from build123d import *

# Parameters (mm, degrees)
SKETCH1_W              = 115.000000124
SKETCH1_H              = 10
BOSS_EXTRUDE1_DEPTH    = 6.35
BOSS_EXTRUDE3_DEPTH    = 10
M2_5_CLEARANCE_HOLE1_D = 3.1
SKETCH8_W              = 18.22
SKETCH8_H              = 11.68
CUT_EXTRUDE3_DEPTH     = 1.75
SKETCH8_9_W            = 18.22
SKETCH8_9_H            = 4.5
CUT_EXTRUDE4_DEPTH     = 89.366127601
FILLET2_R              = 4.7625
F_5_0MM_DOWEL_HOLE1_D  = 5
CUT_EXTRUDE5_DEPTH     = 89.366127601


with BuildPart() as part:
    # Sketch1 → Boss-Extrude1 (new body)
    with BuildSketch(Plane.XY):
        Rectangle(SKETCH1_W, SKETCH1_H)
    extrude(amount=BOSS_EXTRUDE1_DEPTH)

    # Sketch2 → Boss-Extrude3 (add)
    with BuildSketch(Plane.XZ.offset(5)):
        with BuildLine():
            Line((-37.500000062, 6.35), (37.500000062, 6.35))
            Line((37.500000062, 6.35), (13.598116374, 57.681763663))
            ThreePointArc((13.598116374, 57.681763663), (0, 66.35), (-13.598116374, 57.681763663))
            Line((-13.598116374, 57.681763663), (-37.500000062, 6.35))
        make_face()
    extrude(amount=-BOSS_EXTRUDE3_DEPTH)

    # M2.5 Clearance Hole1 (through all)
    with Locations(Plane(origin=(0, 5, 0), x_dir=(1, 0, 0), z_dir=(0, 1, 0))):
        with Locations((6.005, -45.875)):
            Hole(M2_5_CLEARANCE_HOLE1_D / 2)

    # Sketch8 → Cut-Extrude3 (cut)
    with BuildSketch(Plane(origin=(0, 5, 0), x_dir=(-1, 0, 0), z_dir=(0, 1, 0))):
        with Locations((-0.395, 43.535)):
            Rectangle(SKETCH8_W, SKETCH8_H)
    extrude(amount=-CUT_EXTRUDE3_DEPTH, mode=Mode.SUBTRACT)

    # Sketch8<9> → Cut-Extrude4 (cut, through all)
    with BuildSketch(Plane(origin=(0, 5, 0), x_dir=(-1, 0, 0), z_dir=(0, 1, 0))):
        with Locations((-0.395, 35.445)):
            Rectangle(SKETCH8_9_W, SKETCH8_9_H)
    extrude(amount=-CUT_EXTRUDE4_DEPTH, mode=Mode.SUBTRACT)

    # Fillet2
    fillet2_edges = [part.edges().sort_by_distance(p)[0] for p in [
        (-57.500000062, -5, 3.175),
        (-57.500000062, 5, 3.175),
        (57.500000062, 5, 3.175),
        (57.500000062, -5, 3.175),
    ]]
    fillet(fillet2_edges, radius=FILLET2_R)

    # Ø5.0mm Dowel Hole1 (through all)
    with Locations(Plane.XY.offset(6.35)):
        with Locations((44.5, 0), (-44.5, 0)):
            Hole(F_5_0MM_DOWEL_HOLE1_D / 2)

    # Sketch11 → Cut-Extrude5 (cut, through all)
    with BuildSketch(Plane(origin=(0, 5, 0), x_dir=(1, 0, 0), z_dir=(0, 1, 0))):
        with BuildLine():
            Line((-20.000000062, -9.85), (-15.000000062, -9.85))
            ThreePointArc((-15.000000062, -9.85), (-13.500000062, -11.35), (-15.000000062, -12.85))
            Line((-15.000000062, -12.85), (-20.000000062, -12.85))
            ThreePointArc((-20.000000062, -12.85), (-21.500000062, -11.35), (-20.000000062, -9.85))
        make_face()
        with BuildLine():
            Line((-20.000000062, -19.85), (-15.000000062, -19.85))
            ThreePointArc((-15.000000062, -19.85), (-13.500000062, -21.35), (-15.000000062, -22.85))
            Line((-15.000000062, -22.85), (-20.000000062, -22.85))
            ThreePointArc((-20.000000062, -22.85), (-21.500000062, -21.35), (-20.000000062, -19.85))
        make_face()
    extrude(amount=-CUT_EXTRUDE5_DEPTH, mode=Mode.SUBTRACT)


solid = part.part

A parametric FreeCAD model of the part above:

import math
import FreeCAD as App
import Part
import Sketcher

V = App.Vector
Q = App.Units.Quantity


def edges_at(feature, points):
    """Names of the edges that pass closest to the given points."""
    edges = feature.Shape.Edges
    near = lambda p: min(range(len(edges)), key=lambda i: edges[i].distToShape(Part.Vertex(*p))[0])
    return sorted({f"Edge{near(p) + 1}" for p in points})

doc = App.newDocument("Part")
body = doc.addObject("PartDesign::Body", "Body")

sketch1 = body.newObject("Sketcher::SketchObject", "Sketch")
sketch1.AttachmentSupport = (doc.getObject("XY_Plane"), [""])
sketch1.MapMode = "FlatFace"
sketch1.addGeometry([
    Part.LineSegment(V(-58, 5, 0), V(-58, -5, 0)),
    Part.LineSegment(V(-58, -5, 0), V(58, -5, 0)),
    Part.LineSegment(V(58, -5, 0), V(58, 5, 0)),
    Part.LineSegment(V(58, 5, 0), V(-58, 5, 0)),
], False)
sketch1.addConstraint([
    Sketcher.Constraint("Coincident", 0, 2, 1, 1),
    Sketcher.Constraint("Coincident", 1, 2, 2, 1),
    Sketcher.Constraint("Coincident", 2, 2, 3, 1),
    Sketcher.Constraint("Coincident", 3, 2, 0, 1),
    Sketcher.Constraint("Vertical", 0),
    Sketcher.Constraint("Horizontal", 1),
    Sketcher.Constraint("Vertical", 2),
    Sketcher.Constraint("Horizontal", 3),
    Sketcher.Constraint("Symmetric", 0, 2, 2, 2, -1, 1),
    Sketcher.Constraint("DistanceX", 1, 1, 1, 2, Q("115 mm")),
    Sketcher.Constraint("DistanceY", 0, 2, 0, 1, Q("10 mm")),
])
pad1 = body.newObject("PartDesign::Pad", "Pad")
pad1.Profile = sketch1
pad1.Length = 6.35

sketch2 = body.newObject("Sketcher::SketchObject", "Sketch001")
sketch2.AttachmentSupport = (doc.getObject("XZ_Plane"), [""])
sketch2.MapMode = "FlatFace"
sketch2.AttachmentOffset = App.Placement(V(0, 0, 5), App.Rotation())
sketch2.addGeometry([
    Part.LineSegment(V(-38, 6, 0), V(38, 6, 0)),
    Part.LineSegment(V(38, 6, 0), V(14, 58, 0)),
    Part.ArcOfCircle(Part.Circle(V(0, 51, 0), V(0, 0, 1), 15), math.radians(25), math.radians(155)),
    Part.LineSegment(V(-14, 58, 0), V(-38, 6, 0)),
], False)
sketch2.addConstraint([
    Sketcher.Constraint("Coincident", 0, 2, 1, 1),
    Sketcher.Constraint("Tangent", 1, 2, 2, 1),
    Sketcher.Constraint("Tangent", 2, 2, 3, 1),
    Sketcher.Constraint("Coincident", 3, 2, 0, 1),
    Sketcher.Constraint("Horizontal", 0),
    Sketcher.Constraint("Symmetric", 1, 2, 2, 2, -2),
    Sketcher.Constraint("Radius", 2, Q("15 mm")),
    Sketcher.Constraint("DistanceX", 0, 1, 0, 2, Q("75 mm")),
    Sketcher.Constraint("DistanceY", 0, 2, 2, 3, Q("45 mm")),
    Sketcher.Constraint("DistanceY", -1, 1, 2, 3, Q("51.35 mm")),
])
pad2 = body.newObject("PartDesign::Pad", "Pad001")
pad2.Profile = sketch2
pad2.Length = 10
pad2.Reversed = True

sketch3 = body.newObject("Sketcher::SketchObject", "Sketch002")
sketch3.AttachmentSupport = (doc.getObject("XZ_Plane"), [""])
sketch3.MapMode = "FlatFace"
sketch3.AttachmentOffset = App.Placement(V(0, 0, -5), App.Rotation())
sketch3.addGeometry(Part.Circle(V(6, 45.9, 0), V(0, 0, 1), 1.6), False)
sketch3.addConstraint([
    Sketcher.Constraint("Diameter", 0, Q("3.1 mm")),
    Sketcher.Constraint("DistanceX", -1, 1, 0, 3, Q("6.005 mm")),
    Sketcher.Constraint("DistanceY", -1, 1, 0, 3, Q("45.875 mm")),
])
doc.recompute()
hole = body.newObject("PartDesign::Hole", "Hole")
hole.Profile = sketch3
hole.ThreadType = "None"
hole.Diameter = 3.1
hole.DepthType = "ThroughAll"
hole.Reversed = True

sketch4 = body.newObject("Sketcher::SketchObject", "Sketch003")
sketch4.AttachmentSupport = (doc.getObject("XZ_Plane"), [""])
sketch4.MapMode = "FlatFace"
sketch4.AttachmentOffset = App.Placement(V(0, 0, -5), App.Rotation())
sketch4.addGeometry([
    Part.LineSegment(V(10, 49, 0), V(10, 38, 0)),
    Part.LineSegment(V(10, 38, 0), V(-9, 38, 0)),
    Part.LineSegment(V(-9, 38, 0), V(-9, 49, 0)),
    Part.LineSegment(V(-9, 49, 0), V(10, 49, 0)),
], False)
sketch4.addConstraint([
    Sketcher.Constraint("Coincident", 0, 2, 1, 1),
    Sketcher.Constraint("Coincident", 1, 2, 2, 1),
    Sketcher.Constraint("Coincident", 2, 2, 3, 1),
    Sketcher.Constraint("Coincident", 3, 2, 0, 1),
    Sketcher.Constraint("Vertical", 0),
    Sketcher.Constraint("Horizontal", 1),
    Sketcher.Constraint("Vertical", 2),
    Sketcher.Constraint("Horizontal", 3),
    Sketcher.Constraint("DistanceX", 1, 2, 1, 1, Q("18.22 mm")),
    Sketcher.Constraint("DistanceY", 0, 2, 0, 1, Q("11.68 mm")),
    Sketcher.Constraint("DistanceX", -1, 1, 0, 2, Q("9.505 mm")),
    Sketcher.Constraint("DistanceY", -1, 1, 0, 2, Q("37.695 mm")),
])
pocket1 = body.newObject("PartDesign::Pocket", "Pocket")
pocket1.Profile = sketch4
pocket1.Length = 1.75
pocket1.Reversed = True

sketch5 = body.newObject("Sketcher::SketchObject", "Sketch004")
sketch5.AttachmentSupport = (doc.getObject("XZ_Plane"), [""])
sketch5.MapMode = "FlatFace"
sketch5.AttachmentOffset = App.Placement(V(0, 0, -5), App.Rotation())
sketch5.addGeometry([
    Part.LineSegment(V(9.5, 37.7, 0), V(9.5, 33.2, 0)),
    Part.LineSegment(V(9.5, 33.2, 0), V(-8.7, 33.2, 0)),
    Part.LineSegment(V(-8.7, 33.2, 0), V(-8.7, 37.7, 0)),
    Part.LineSegment(V(-8.7, 37.7, 0), V(9.5, 37.7, 0)),
], False)
sketch5.addConstraint([
    Sketcher.Constraint("Coincident", 0, 2, 1, 1),
    Sketcher.Constraint("Coincident", 1, 2, 2, 1),
    Sketcher.Constraint("Coincident", 2, 2, 3, 1),
    Sketcher.Constraint("Coincident", 3, 2, 0, 1),
    Sketcher.Constraint("Vertical", 0),
    Sketcher.Constraint("Horizontal", 1),
    Sketcher.Constraint("Vertical", 2),
    Sketcher.Constraint("Horizontal", 3),
    Sketcher.Constraint("DistanceY", 0, 2, 0, 1, Q("4.5 mm")),
    Sketcher.Constraint("DistanceX", 1, 2, 1, 1, Q("18.22 mm")),
    Sketcher.Constraint("DistanceX", -1, 1, 0, 2, Q("9.505 mm")),
    Sketcher.Constraint("DistanceY", -1, 1, 0, 2, Q("33.195 mm")),
])
pocket2 = body.newObject("PartDesign::Pocket", "Pocket001")
pocket2.Profile = sketch5
pocket2.Type = "ThroughAll"
pocket2.Reversed = True
doc.recompute()

fillet = body.newObject("PartDesign::Fillet", "Fillet")
fillet.Base = (pocket2, edges_at(pocket2, [
    (-57.5, -5, 3.175),
    (-57.5, 5, 3.175),
    (57.5, 5, 3.175),
    (57.5, -5, 3.175),
]))
fillet.Radius = 4.7625

sketch6 = body.newObject("Sketcher::SketchObject", "Sketch005")
sketch6.AttachmentSupport = (doc.getObject("XY_Plane"), [""])
sketch6.MapMode = "FlatFace"
sketch6.AttachmentOffset = App.Placement(V(0, 0, 6.35), App.Rotation())
sketch6.addGeometry([
    Part.Circle(V(44.5, 0, 0), V(0, 0, 1), 2.5),
    Part.Circle(V(-44.5, 0, 0), V(0, 0, 1), 2.5),
], False)
sketch6.addConstraint([
    Sketcher.Constraint("Equal", 0, 1),
    Sketcher.Constraint("Symmetric", 0, 3, 1, 3, -1, 1),
    Sketcher.Constraint("PointOnObject", 0, 3, -1),
    Sketcher.Constraint("Diameter", 0, Q("5 mm")),
    Sketcher.Constraint("DistanceX", 1, 3, 0, 3, Q("89 mm")),
])
doc.recompute()
hole2 = body.newObject("PartDesign::Hole", "Hole001")
hole2.Profile = sketch6
hole2.ThreadType = "None"
hole2.Diameter = 5
hole2.DepthType = "ThroughAll"

sketch7 = body.newObject("Sketcher::SketchObject", "Sketch006")
sketch7.AttachmentSupport = (doc.getObject("XZ_Plane"), [""])
sketch7.MapMode = "FlatFace"
sketch7.AttachmentOffset = App.Placement(V(0, 0, -5), App.Rotation())
sketch7.addGeometry([
    Part.LineSegment(V(-15, 9.8, 0), V(-20, 9.8, 0)),
    Part.ArcOfCircle(Part.Circle(V(-20, 11.3, 0), V(0, 0, 1), 1.5), math.radians(90), math.radians(270)),
    Part.LineSegment(V(-20, 12.8, 0), V(-15, 12.8, 0)),
    Part.ArcOfCircle(Part.Circle(V(-15, 11.3, 0), V(0, 0, 1), 1.5), math.radians(-90), math.radians(90)),
    Part.LineSegment(V(-15, 19.9, 0), V(-20, 19.9, 0)),
    Part.ArcOfCircle(Part.Circle(V(-20, 21.4, 0), V(0, 0, 1), 1.5), math.radians(90), math.radians(270)),
    Part.LineSegment(V(-20, 22.9, 0), V(-15, 22.9, 0)),
    Part.ArcOfCircle(Part.Circle(V(-15, 21.4, 0), V(0, 0, 1), 1.5), math.radians(-90), math.radians(90)),
], False)
sketch7.addConstraint([
    Sketcher.Constraint("Tangent", 0, 2, 1, 2),
    Sketcher.Constraint("Tangent", 1, 1, 2, 1),
    Sketcher.Constraint("Tangent", 2, 2, 3, 2),
    Sketcher.Constraint("Tangent", 3, 1, 0, 1),
    Sketcher.Constraint("Tangent", 4, 2, 5, 2),
    Sketcher.Constraint("Tangent", 5, 1, 6, 1),
    Sketcher.Constraint("Tangent", 6, 2, 7, 2),
    Sketcher.Constraint("Tangent", 7, 1, 4, 1),
    Sketcher.Constraint("Horizontal", 0),
    Sketcher.Constraint("Horizontal", 2),
    Sketcher.Constraint("Horizontal", 4),
    Sketcher.Constraint("Horizontal", 6),
    Sketcher.Constraint("Equal", 3, 5),
    Sketcher.Constraint("Vertical", 1, 3, 5, 3),
    Sketcher.Constraint("Vertical", 3, 3, 7, 3),
    Sketcher.Constraint("Radius", 1, Q("1.5 mm")),
    Sketcher.Constraint("DistanceX", 0, 2, 0, 1, Q("5 mm")),
    Sketcher.Constraint("DistanceX", 1, 3, -1, 1, Q("20 mm")),
    Sketcher.Constraint("DistanceY", 1, 3, 5, 3, Q("10 mm")),
    Sketcher.Constraint("DistanceY", -1, 1, 1, 3, Q("11.35 mm")),
])
pocket3 = body.newObject("PartDesign::Pocket", "Pocket002")
pocket3.Profile = sketch7
pocket3.Type = "ThroughAll"
pocket3.Reversed = True

doc.recompute()
